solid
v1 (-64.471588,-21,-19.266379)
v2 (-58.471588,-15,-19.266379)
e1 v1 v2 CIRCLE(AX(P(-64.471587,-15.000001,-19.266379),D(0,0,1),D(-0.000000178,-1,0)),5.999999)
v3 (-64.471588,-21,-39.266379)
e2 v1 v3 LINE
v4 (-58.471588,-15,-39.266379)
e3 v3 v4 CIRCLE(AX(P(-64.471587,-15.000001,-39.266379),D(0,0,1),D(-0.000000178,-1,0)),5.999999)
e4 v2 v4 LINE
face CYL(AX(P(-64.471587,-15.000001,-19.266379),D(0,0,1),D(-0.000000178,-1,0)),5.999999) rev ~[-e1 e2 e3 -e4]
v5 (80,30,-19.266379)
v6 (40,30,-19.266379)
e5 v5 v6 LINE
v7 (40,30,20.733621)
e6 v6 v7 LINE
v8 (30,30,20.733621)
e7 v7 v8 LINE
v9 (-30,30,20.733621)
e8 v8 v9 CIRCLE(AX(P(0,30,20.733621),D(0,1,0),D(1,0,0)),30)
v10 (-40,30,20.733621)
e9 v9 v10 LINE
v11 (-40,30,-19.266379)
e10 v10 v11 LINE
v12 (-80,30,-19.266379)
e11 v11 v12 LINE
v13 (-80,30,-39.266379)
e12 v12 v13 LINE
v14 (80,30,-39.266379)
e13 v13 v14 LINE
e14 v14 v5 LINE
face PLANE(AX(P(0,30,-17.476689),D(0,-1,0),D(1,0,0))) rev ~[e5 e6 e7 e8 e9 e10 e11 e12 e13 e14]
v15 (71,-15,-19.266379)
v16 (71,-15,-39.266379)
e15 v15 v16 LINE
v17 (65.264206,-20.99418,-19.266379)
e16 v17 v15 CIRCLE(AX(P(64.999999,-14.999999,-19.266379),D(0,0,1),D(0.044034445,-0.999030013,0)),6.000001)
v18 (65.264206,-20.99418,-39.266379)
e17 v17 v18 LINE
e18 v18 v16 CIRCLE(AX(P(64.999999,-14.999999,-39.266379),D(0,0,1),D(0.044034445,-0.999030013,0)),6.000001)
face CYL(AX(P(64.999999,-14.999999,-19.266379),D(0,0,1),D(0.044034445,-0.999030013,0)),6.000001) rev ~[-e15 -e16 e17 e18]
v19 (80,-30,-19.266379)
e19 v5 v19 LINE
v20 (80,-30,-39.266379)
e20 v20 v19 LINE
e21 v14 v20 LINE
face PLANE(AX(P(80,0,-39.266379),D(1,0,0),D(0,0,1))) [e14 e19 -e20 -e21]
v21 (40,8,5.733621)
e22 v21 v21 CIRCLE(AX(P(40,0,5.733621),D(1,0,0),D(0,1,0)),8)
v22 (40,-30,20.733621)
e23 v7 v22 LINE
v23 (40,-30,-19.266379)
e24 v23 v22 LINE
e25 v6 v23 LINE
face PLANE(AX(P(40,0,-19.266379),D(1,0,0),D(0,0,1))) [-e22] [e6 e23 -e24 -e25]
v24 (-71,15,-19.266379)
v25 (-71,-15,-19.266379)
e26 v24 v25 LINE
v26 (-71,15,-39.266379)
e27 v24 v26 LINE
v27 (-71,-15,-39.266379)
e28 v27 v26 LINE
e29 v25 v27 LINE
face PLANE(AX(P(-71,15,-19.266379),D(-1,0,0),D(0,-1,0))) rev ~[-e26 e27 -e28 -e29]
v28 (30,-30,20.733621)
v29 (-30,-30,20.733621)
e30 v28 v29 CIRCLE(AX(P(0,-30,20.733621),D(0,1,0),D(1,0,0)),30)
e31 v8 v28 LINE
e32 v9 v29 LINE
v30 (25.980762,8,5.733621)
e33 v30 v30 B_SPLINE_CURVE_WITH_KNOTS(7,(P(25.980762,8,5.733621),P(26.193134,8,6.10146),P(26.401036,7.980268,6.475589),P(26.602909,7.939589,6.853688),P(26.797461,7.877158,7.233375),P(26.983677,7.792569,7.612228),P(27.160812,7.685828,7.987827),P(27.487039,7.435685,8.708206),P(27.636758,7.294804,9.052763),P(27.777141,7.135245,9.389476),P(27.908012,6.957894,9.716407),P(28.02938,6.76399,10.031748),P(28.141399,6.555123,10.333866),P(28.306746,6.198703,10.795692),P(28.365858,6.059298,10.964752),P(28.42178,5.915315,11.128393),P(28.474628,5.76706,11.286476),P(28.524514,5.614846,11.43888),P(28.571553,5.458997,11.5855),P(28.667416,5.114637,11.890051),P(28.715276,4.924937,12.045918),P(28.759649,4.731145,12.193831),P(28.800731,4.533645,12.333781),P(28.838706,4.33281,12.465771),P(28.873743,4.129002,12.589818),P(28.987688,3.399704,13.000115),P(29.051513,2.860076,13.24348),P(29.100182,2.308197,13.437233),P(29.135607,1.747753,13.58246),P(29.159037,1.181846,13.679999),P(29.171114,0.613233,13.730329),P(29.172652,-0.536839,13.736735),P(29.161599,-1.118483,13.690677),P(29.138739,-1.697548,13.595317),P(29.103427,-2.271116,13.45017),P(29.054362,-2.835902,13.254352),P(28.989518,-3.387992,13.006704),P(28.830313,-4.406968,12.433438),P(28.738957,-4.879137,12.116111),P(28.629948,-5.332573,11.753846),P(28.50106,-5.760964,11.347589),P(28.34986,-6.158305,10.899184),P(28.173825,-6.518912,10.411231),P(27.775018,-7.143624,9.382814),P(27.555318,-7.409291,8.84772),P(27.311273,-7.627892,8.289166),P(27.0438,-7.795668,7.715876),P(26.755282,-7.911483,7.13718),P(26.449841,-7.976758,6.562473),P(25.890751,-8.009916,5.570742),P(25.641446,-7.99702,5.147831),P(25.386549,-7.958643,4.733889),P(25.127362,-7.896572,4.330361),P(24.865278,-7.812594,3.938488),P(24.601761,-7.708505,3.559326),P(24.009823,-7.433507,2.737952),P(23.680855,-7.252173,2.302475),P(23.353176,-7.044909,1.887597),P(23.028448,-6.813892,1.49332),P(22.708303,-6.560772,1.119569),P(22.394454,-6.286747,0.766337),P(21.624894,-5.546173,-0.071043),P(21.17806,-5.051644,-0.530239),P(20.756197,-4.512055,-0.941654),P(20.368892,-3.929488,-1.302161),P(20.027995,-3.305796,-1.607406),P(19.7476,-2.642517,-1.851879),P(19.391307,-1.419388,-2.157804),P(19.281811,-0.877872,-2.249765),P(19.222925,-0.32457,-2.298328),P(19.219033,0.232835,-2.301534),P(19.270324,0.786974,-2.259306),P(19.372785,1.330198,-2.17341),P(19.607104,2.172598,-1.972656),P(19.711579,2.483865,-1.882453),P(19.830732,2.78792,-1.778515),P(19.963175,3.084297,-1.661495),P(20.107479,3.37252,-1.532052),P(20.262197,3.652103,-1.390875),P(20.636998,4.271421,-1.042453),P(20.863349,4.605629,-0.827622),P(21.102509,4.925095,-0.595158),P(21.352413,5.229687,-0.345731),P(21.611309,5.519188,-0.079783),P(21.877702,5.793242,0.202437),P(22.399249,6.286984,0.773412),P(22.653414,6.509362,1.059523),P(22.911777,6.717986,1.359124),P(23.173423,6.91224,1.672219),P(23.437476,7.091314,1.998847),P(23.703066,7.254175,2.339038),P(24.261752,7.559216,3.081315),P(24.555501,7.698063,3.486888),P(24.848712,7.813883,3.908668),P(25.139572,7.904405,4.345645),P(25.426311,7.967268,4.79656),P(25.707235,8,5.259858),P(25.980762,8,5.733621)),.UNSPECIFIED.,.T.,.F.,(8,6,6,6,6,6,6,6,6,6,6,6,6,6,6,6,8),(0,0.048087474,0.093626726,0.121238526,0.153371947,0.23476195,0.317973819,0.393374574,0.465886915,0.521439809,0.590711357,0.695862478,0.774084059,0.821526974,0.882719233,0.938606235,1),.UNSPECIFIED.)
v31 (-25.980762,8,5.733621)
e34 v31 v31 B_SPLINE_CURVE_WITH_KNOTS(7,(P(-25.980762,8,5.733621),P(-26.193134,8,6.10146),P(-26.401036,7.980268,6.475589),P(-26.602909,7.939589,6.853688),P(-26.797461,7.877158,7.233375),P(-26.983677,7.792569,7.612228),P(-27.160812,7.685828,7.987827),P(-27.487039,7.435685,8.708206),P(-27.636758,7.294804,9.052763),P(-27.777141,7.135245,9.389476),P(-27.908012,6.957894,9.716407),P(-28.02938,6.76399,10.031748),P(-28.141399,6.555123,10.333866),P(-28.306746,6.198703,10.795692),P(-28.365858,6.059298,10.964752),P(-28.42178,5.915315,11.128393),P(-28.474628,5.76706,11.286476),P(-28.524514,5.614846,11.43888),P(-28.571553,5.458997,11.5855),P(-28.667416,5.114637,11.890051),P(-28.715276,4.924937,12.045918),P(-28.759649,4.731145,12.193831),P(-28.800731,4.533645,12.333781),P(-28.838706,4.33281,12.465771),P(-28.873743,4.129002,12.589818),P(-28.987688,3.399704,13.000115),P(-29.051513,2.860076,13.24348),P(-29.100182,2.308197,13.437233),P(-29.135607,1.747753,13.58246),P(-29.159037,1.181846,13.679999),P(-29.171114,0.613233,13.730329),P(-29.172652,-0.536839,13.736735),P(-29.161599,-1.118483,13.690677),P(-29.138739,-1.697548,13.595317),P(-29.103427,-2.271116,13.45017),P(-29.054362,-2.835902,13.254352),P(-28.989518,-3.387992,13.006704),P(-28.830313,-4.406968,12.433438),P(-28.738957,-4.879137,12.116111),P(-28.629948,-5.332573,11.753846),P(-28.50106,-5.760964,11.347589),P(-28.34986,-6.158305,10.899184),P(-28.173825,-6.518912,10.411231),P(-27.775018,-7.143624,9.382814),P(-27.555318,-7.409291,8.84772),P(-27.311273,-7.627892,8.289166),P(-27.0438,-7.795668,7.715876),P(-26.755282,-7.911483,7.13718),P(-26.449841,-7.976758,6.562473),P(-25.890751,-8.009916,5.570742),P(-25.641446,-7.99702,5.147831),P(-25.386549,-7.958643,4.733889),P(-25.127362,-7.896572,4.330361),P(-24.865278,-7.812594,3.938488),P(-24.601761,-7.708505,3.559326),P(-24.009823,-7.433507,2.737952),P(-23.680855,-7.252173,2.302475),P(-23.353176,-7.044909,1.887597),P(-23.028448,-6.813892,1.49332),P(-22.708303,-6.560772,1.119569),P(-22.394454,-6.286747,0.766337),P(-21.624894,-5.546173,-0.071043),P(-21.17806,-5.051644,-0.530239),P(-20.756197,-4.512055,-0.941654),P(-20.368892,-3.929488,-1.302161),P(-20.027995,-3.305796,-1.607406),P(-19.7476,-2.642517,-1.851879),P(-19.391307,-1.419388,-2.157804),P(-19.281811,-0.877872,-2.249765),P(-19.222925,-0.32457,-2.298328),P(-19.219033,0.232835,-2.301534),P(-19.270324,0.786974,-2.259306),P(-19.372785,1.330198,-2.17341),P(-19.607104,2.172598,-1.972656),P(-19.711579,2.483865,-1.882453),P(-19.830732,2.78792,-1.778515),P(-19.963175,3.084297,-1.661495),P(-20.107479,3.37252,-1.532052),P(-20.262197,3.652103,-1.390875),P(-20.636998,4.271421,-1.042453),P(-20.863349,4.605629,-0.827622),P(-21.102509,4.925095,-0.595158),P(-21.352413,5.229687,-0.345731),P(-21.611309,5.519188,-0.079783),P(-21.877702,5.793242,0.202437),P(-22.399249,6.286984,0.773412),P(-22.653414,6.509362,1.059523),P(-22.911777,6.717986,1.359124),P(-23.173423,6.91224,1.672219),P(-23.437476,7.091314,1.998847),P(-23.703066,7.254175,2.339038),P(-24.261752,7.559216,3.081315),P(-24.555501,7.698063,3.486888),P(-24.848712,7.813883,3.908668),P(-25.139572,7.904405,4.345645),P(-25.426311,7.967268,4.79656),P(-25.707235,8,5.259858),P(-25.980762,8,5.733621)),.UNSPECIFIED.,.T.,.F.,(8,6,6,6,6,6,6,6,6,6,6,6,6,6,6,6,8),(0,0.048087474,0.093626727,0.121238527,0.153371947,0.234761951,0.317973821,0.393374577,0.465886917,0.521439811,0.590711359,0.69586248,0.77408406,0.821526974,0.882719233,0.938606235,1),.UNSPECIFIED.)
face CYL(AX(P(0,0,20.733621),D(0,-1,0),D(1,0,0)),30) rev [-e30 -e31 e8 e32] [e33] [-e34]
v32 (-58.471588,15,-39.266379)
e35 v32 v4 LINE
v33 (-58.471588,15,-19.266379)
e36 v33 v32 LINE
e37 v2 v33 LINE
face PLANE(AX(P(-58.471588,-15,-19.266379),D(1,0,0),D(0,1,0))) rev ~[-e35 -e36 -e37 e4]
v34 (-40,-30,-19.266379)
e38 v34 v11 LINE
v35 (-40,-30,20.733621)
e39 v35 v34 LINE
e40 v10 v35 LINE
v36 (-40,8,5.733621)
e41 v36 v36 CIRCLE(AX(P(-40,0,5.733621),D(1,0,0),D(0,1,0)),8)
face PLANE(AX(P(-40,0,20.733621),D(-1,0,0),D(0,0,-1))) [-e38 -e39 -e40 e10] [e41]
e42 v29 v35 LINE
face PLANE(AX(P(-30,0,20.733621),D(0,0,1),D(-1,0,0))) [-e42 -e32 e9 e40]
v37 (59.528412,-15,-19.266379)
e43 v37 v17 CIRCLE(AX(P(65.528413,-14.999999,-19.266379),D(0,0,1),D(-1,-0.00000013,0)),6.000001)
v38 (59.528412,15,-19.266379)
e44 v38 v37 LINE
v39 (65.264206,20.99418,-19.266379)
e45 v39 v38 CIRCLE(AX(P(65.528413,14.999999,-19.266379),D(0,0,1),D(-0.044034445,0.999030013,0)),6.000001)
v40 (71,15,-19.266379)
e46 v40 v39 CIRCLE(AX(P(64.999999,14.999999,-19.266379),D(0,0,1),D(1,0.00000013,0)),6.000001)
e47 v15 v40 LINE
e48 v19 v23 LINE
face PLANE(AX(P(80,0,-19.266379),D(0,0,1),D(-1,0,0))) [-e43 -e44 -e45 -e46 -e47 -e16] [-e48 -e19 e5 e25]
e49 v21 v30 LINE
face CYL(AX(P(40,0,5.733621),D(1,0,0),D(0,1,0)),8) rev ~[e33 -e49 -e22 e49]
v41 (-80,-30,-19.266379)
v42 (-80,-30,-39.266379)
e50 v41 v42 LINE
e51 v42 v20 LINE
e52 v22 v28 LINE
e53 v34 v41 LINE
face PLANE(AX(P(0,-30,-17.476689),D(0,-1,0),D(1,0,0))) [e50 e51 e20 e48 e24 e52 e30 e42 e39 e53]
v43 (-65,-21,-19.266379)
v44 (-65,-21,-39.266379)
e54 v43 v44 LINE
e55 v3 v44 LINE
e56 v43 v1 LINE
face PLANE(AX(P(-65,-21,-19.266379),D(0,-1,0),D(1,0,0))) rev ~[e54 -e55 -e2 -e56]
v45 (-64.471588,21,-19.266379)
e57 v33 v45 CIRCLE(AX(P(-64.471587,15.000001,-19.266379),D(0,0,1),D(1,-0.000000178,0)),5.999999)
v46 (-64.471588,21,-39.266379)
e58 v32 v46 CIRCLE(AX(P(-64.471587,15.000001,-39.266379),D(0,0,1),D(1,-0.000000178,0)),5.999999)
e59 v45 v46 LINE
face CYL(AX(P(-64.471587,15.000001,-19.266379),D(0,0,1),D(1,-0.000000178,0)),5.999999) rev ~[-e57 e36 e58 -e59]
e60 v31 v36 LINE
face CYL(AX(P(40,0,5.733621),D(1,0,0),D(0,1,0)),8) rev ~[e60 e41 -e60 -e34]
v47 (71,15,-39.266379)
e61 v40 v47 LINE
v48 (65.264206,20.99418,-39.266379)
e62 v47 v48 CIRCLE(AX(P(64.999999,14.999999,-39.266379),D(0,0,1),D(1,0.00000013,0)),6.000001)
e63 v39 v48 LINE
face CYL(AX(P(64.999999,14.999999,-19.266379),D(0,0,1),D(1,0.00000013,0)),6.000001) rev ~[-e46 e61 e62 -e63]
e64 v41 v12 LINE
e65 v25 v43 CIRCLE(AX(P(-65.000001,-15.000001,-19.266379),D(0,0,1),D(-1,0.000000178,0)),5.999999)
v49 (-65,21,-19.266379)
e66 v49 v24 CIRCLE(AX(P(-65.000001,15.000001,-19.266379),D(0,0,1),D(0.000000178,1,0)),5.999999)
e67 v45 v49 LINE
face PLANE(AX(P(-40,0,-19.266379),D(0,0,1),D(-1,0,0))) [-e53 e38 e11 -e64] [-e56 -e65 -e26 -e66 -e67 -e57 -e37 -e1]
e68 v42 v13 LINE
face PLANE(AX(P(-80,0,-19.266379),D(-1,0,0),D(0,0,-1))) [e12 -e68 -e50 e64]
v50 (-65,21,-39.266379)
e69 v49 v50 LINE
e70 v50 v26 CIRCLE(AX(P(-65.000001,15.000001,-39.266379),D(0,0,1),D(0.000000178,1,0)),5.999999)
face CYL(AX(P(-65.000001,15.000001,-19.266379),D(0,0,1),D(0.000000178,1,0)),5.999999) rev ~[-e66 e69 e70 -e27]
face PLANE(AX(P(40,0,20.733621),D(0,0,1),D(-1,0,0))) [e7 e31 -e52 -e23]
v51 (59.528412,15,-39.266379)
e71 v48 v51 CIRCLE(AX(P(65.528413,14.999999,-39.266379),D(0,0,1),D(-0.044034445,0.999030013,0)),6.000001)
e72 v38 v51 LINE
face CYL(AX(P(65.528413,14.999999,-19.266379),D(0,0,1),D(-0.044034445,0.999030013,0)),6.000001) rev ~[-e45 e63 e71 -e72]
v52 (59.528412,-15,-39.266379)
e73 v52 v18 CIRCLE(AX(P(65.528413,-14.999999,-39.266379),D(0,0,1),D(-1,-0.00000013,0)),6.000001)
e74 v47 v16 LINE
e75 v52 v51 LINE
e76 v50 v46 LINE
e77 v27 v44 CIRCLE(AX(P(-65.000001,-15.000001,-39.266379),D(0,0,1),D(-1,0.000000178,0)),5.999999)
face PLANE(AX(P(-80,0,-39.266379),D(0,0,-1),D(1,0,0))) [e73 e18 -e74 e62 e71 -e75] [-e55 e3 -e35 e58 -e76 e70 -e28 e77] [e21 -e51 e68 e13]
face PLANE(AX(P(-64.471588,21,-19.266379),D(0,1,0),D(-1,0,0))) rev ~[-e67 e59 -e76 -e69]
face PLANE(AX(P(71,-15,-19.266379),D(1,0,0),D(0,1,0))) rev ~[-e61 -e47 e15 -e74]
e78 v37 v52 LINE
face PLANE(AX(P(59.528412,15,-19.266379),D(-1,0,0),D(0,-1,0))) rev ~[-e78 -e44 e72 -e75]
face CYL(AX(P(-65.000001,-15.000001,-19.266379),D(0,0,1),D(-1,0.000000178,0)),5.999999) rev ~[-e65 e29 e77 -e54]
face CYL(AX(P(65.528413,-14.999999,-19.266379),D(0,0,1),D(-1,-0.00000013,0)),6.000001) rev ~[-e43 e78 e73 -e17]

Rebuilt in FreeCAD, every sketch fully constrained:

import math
import FreeCAD as App
import Part
import Sketcher
Q = App.Units.Quantity

doc = App.newDocument("Part")
body = doc.addObject("PartDesign::Body", "Body")

sketch1 = doc.addObject("Sketcher::SketchObject", "Sketch")
body.addObject(sketch1)
sketch1.AttachmentSupport = (doc.XZ_Plane, [""])
sketch1.MapMode = "FlatFace"
sketch1.addGeometry(Part.LineSegment(App.Vector(-80, -39, 0), App.Vector(80, -39, 0)), False)
sketch1.addGeometry(Part.LineSegment(App.Vector(80, -39, 0), App.Vector(80, -19, 0)), False)
sketch1.addGeometry(Part.LineSegment(App.Vector(80, -19, 0), App.Vector(40, -19, 0)), False)
sketch1.addGeometry(Part.LineSegment(App.Vector(40, -19, 0), App.Vector(40, 21, 0)), False)
sketch1.addGeometry(Part.LineSegment(App.Vector(40, 21, 0), App.Vector(30, 21, 0)), False)
sketch1.addGeometry(Part.ArcOfCircle(Part.Circle(App.Vector(0, 21, 0), App.Vector(0, 0, 1), 30), math.radians(180), math.radians(360)), False)
sketch1.addGeometry(Part.LineSegment(App.Vector(-30, 21, 0), App.Vector(-40, 21, 0)), False)
sketch1.addGeometry(Part.LineSegment(App.Vector(-40, 21, 0), App.Vector(-40, -19, 0)), False)
sketch1.addGeometry(Part.LineSegment(App.Vector(-40, -19, 0), App.Vector(-80, -19, 0)), False)
sketch1.addGeometry(Part.LineSegment(App.Vector(-80, -19, 0), App.Vector(-80, -39, 0)), False)
sketch1.addConstraint(Sketcher.Constraint("Coincident", 0, 2, 1, 1))
sketch1.addConstraint(Sketcher.Constraint("Coincident", 1, 2, 2, 1))
sketch1.addConstraint(Sketcher.Constraint("Coincident", 2, 2, 3, 1))
sketch1.addConstraint(Sketcher.Constraint("Coincident", 3, 2, 4, 1))
sketch1.addConstraint(Sketcher.Constraint("Coincident", 4, 2, 5, 2))
sketch1.addConstraint(Sketcher.Constraint("Coincident", 5, 1, 6, 1))
sketch1.addConstraint(Sketcher.Constraint("Coincident", 6, 2, 7, 1))
sketch1.addConstraint(Sketcher.Constraint("Coincident", 7, 2, 8, 1))
sketch1.addConstraint(Sketcher.Constraint("Coincident", 8, 2, 9, 1))
sketch1.addConstraint(Sketcher.Constraint("Coincident", 9, 2, 0, 1))
sketch1.addConstraint(Sketcher.Constraint("Horizontal", 0))
sketch1.addConstraint(Sketcher.Constraint("Vertical", 1))
sketch1.addConstraint(Sketcher.Constraint("Horizontal", 2))
sketch1.addConstraint(Sketcher.Constraint("Vertical", 3))
sketch1.addConstraint(Sketcher.Constraint("Horizontal", 4))
sketch1.addConstraint(Sketcher.Constraint("Horizontal", 6))
sketch1.addConstraint(Sketcher.Constraint("Vertical", 7))
sketch1.addConstraint(Sketcher.Constraint("Horizontal", 8))
sketch1.addConstraint(Sketcher.Constraint("Vertical", 9))
sketch1.addConstraint(Sketcher.Constraint("Symmetric", 4, 2, 5, 1, -2))
sketch1.addConstraint(Sketcher.Constraint("Symmetric", 2, 2, 7, 2, -2))
sketch1.addConstraint(Sketcher.Constraint("Horizontal", 5, 3, 3, 2))
sketch1.addConstraint(Sketcher.Constraint("Equal", 2, 8))
sketch1.addConstraint(Sketcher.Constraint("Equal", 8, 3))
sketch1.addConstraint(Sketcher.Constraint("Radius", 5, Q("30 mm")))
sketch1.addConstraint(Sketcher.Constraint("DistanceX", 0, 1, 0, 2, Q("160 mm")))
sketch1.addConstraint(Sketcher.Constraint("DistanceX", 2, 2, 2, 1, Q("40 mm")))
sketch1.addConstraint(Sketcher.Constraint("DistanceY", 1, 1, 1, 2, Q("20 mm")))
sketch1.addConstraint(Sketcher.Constraint("DistanceY", -1, 1, 5, 3, Q("20.733621 mm")))
pad1 = doc.addObject("PartDesign::Pad", "Pad")
body.addObject(pad1)
pad1.Profile = sketch1
pad1.Length = 60
pad1.Midplane = True

sketch2 = doc.addObject("Sketcher::SketchObject", "Sketch001")
body.addObject(sketch2)
sketch2.AttachmentSupport = (doc.YZ_Plane, [""])
sketch2.MapMode = "FlatFace"
sketch2.AttachmentOffset = App.Placement(App.Vector(0, 0, 40), App.Rotation())
sketch2.addGeometry(Part.Circle(App.Vector(0, 6, 0), App.Vector(0, 0, 1), 8), False)
sketch2.addConstraint(Sketcher.Constraint("PointOnObject", 0, 3, -2))
sketch2.addConstraint(Sketcher.Constraint("Diameter", 0, Q("16 mm")))
sketch2.addConstraint(Sketcher.Constraint("DistanceY", -1, 1, 0, 3, Q("5.733621 mm")))
pocket1 = doc.addObject("PartDesign::Pocket", "Pocket")
body.addObject(pocket1)
pocket1.Profile = sketch2
pocket1.Type = "ThroughAll"

sketch3 = doc.addObject("Sketcher::SketchObject", "Sketch002")
body.addObject(sketch3)
sketch3.AttachmentSupport = (doc.XY_Plane, [""])
sketch3.MapMode = "FlatFace"
sketch3.AttachmentOffset = App.Placement(App.Vector(0, 0, -19.266379), App.Rotation())
sketch3.addGeometry(Part.ArcOfCircle(Part.Circle(App.Vector(-64.5, 15, 0), App.Vector(0, 0, 1), 6), math.radians(0), math.radians(90)), False)
sketch3.addGeometry(Part.LineSegment(App.Vector(-64.5, 21, 0), App.Vector(-65, 21, 0)), False)
sketch3.addGeometry(Part.ArcOfCircle(Part.Circle(App.Vector(-65, 15, 0), App.Vector(0, 0, 1), 6), math.radians(90), math.radians(180)), False)
sketch3.addGeometry(Part.LineSegment(App.Vector(-71, 15, 0), App.Vector(-71, -15, 0)), False)
sketch3.addGeometry(Part.ArcOfCircle(Part.Circle(App.Vector(-65, -15, 0), App.Vector(0, 0, 1), 6), math.radians(180), math.radians(270)), False)
sketch3.addGeometry(Part.LineSegment(App.Vector(-65, -21, 0), App.Vector(-64.5, -21, 0)), False)
sketch3.addGeometry(Part.ArcOfCircle(Part.Circle(App.Vector(-64.5, -15, 0), App.Vector(0, 0, 1), 6), math.radians(-90), math.radians(0)), False)
sketch3.addGeometry(Part.LineSegment(App.Vector(-58.5, -15, 0), App.Vector(-58.5, 15, 0)), False)
sketch3.addConstraint(Sketcher.Constraint("Tangent", 0, 2, 1, 1))
sketch3.addConstraint(Sketcher.Constraint("Tangent", 1, 2, 2, 1))
sketch3.addConstraint(Sketcher.Constraint("Tangent", 2, 2, 3, 1))
sketch3.addConstraint(Sketcher.Constraint("Tangent", 3, 2, 4, 1))
sketch3.addConstraint(Sketcher.Constraint("Tangent", 4, 2, 5, 1))
sketch3.addConstraint(Sketcher.Constraint("Tangent", 5, 2, 6, 1))
sketch3.addConstraint(Sketcher.Constraint("Tangent", 6, 2, 7, 1))
sketch3.addConstraint(Sketcher.Constraint("Tangent", 7, 2, 0, 1))
sketch3.addConstraint(Sketcher.Constraint("Horizontal", 1))
sketch3.addConstraint(Sketcher.Constraint("Vertical", 3))
sketch3.addConstraint(Sketcher.Constraint("Horizontal", 5))
sketch3.addConstraint(Sketcher.Constraint("Vertical", 7))
sketch3.addConstraint(Sketcher.Constraint("Equal", 0, 2))
sketch3.addConstraint(Sketcher.Constraint("Equal", 2, 4))
sketch3.addConstraint(Sketcher.Constraint("Equal", 4, 6))
sketch3.addConstraint(Sketcher.Constraint("Radius", 0, Q("5.999999 mm")))
sketch3.addConstraint(Sketcher.Constraint("DistanceY", 3, 2, 3, 1, Q("30 mm")))
sketch3.addConstraint(Sketcher.Constraint("DistanceY", -1, 1, 0, 3, Q("15.000001 mm")))
sketch3.addConstraint(Sketcher.Constraint("DistanceX", 2, 3, -1, 1, Q("65.000001 mm")))
sketch3.addConstraint(Sketcher.Constraint("DistanceX", 1, 2, 1, 1, Q("0.528412 mm")))
pocket2 = doc.addObject("PartDesign::Pocket", "Pocket001")
body.addObject(pocket2)
pocket2.Profile = sketch3
pocket2.Type = "ThroughAll"

sketch4 = doc.addObject("Sketcher::SketchObject", "Sketch003")
body.addObject(sketch4)
sketch4.AttachmentSupport = (doc.XY_Plane, [""])
sketch4.MapMode = "FlatFace"
sketch4.AttachmentOffset = App.Placement(App.Vector(0, 0, -19.266379), App.Rotation())
sketch4.addGeometry(Part.ArcOfCircle(Part.Circle(App.Vector(64.999999, 14.999999, 0), App.Vector(0, 0, 1), 6.000001), math.radians(0.000007), math.radians(87.476196)), False)
sketch4.addGeometry(Part.ArcOfCircle(Part.Circle(App.Vector(65.528413, 14.999999, 0), App.Vector(0, 0, 1), 6.000001), math.radians(92.523804), math.radians(179.999993)), False)
sketch4.addGeometry(Part.LineSegment(App.Vector(59.528412, 15, 0), App.Vector(59.528412, -15, 0)), False)
sketch4.addGeometry(Part.ArcOfCircle(Part.Circle(App.Vector(65.528413, -14.999999, 0), App.Vector(0, 0, 1), 6.000001), math.radians(-179.999993), math.radians(-92.523804)), False)
sketch4.addGeometry(Part.ArcOfCircle(Part.Circle(App.Vector(64.999999, -14.999999, 0), App.Vector(0, 0, 1), 6.000001), math.radians(-87.476196), math.radians(-0.000007)), False)
sketch4.addGeometry(Part.LineSegment(App.Vector(71, -15, 0), App.Vector(71, 15, 0)), False)
sketch4.addConstraint(Sketcher.Constraint("Coincident", 0, 2, 1, 1))
sketch4.addConstraint(Sketcher.Constraint("Coincident", 1, 2, 2, 1))
sketch4.addConstraint(Sketcher.Constraint("Coincident", 2, 2, 3, 1))
sketch4.addConstraint(Sketcher.Constraint("Coincident", 3, 2, 4, 1))
sketch4.addConstraint(Sketcher.Constraint("Coincident", 4, 2, 5, 1))
sketch4.addConstraint(Sketcher.Constraint("Coincident", 5, 2, 0, 1))
sketch4.addConstraint(Sketcher.Constraint("Vertical", 2))
sketch4.addConstraint(Sketcher.Constraint("Vertical", 5))
sketch4.addConstraint(Sketcher.Constraint("Radius", 0, Q("6.000001 mm")))
sketch4.addConstraint(Sketcher.Constraint("Radius", 1, Q("6.000001 mm")))
sketch4.addConstraint(Sketcher.Constraint("Radius", 3, Q("6.000001 mm")))
sketch4.addConstraint(Sketcher.Constraint("Radius", 4, Q("6.000001 mm")))
sketch4.addConstraint(Sketcher.Constraint("DistanceY", 2, 2, 2, 1, Q("30 mm")))
sketch4.addConstraint(Sketcher.Constraint("DistanceY", 5, 1, 5, 2, Q("30 mm")))
sketch4.addConstraint(Sketcher.Constraint("DistanceX", -1, 1, 0, 3, Q("64.999999 mm")))
sketch4.addConstraint(Sketcher.Constraint("DistanceY", -1, 1, 0, 3, Q("14.999999 mm")))
sketch4.addConstraint(Sketcher.Constraint("DistanceY", -1, 1, 1, 3, Q("14.999999 mm")))
sketch4.addConstraint(Sketcher.Constraint("DistanceY", 3, 3, -1, 1, Q("14.999999 mm")))
sketch4.addConstraint(Sketcher.Constraint("DistanceY", 4, 3, -1, 1, Q("14.999999 mm")))
sketch4.addConstraint(Sketcher.Constraint("DistanceY", -1, 1, 1, 2, Q("15 mm")))
sketch4.addConstraint(Sketcher.Constraint("DistanceY", 4, 2, -1, 1, Q("15 mm")))
sketch4.addConstraint(Sketcher.Constraint("DistanceY", -1, 1, 0, 2, Q("20.99418 mm")))
pocket3 = doc.addObject("PartDesign::Pocket", "Pocket002")
body.addObject(pocket3)
pocket3.Profile = sketch4
pocket3.Type = "ThroughAll"

doc.recompute()
